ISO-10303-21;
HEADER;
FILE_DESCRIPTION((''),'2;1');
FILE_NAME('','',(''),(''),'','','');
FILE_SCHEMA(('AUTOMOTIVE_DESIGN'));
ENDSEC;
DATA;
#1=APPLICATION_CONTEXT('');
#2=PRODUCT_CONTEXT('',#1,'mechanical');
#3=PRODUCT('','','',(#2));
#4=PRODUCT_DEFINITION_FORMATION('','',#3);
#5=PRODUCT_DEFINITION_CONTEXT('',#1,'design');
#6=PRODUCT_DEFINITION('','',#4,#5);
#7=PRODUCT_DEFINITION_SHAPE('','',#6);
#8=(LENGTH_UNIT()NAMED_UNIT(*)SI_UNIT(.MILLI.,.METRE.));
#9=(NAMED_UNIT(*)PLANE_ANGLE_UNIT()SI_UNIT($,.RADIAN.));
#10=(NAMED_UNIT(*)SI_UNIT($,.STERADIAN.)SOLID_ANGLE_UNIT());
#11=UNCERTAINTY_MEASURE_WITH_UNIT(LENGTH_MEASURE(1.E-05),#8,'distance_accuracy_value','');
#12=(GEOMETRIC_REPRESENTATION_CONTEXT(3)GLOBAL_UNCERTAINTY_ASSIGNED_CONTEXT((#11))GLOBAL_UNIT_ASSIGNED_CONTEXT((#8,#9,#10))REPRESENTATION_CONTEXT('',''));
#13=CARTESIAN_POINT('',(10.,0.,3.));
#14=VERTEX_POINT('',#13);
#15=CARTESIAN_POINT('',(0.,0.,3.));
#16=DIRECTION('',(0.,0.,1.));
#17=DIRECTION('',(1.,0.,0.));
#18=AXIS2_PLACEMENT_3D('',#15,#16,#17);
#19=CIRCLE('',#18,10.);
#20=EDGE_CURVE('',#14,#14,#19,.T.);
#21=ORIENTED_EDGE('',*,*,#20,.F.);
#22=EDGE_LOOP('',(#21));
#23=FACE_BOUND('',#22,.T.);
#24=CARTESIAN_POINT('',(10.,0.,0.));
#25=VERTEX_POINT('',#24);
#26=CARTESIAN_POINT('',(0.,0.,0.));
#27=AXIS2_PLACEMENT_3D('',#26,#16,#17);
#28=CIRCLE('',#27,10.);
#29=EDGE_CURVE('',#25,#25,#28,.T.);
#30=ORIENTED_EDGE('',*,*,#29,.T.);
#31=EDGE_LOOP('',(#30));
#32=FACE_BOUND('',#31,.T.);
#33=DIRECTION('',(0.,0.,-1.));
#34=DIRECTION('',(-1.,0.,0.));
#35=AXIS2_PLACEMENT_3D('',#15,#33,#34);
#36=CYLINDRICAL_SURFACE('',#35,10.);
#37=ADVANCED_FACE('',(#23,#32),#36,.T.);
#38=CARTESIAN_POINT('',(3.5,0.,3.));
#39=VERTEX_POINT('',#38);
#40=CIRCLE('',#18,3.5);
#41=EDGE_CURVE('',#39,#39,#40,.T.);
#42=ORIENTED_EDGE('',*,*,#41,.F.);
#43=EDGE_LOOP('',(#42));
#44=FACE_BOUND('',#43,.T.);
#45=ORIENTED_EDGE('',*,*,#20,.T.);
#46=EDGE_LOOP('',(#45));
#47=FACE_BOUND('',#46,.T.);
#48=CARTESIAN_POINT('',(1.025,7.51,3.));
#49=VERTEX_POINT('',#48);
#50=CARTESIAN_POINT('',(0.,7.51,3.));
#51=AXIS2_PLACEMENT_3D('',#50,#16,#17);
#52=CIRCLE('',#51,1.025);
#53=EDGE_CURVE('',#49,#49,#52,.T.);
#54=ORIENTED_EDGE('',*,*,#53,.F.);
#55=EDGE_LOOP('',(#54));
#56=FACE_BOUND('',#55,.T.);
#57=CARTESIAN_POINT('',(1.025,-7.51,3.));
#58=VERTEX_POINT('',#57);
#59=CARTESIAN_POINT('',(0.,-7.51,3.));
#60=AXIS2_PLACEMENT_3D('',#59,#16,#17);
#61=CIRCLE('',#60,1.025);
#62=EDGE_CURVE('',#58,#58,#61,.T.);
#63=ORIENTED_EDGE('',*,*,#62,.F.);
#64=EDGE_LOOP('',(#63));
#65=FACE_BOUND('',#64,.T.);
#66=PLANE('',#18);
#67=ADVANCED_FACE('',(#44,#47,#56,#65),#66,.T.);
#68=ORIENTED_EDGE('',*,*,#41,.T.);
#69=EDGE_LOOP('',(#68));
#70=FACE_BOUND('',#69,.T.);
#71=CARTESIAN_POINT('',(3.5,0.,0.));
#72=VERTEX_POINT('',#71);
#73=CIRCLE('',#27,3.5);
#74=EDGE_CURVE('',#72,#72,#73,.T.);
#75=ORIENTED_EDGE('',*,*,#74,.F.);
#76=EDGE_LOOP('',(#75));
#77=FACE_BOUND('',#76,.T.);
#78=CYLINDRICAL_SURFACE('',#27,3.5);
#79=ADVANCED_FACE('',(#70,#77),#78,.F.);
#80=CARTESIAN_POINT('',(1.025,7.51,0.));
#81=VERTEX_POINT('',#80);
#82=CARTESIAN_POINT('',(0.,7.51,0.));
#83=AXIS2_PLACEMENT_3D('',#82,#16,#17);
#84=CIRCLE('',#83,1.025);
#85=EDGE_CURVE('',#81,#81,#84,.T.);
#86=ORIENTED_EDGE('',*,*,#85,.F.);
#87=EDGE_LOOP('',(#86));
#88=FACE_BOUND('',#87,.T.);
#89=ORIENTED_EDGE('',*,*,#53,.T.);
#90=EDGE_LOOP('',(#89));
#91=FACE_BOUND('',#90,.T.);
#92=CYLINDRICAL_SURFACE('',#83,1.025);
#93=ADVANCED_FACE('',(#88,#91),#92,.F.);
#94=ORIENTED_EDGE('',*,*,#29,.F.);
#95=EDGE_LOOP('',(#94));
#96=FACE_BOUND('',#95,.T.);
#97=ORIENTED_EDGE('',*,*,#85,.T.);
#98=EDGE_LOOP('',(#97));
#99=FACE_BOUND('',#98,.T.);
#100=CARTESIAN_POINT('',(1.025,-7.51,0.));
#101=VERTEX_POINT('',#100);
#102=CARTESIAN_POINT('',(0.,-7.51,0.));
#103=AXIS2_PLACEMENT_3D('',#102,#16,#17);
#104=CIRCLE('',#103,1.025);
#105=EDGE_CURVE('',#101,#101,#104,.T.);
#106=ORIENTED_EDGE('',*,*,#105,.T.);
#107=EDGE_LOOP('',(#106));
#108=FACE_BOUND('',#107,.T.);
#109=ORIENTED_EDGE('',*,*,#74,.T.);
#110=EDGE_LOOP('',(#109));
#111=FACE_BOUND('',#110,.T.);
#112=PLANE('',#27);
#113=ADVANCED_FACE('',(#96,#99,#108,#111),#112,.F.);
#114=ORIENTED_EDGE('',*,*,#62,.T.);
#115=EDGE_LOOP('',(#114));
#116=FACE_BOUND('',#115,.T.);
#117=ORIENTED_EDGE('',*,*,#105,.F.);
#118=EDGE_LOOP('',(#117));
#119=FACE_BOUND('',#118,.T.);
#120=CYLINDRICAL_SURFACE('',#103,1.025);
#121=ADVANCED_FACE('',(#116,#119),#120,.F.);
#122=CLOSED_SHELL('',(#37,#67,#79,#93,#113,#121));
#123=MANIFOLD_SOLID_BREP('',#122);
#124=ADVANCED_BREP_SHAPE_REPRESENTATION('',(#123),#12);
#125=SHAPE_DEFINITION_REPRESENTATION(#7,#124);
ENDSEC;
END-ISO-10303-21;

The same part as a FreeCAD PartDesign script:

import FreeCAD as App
import Part
import Sketcher
from FreeCAD import Vector
Q = App.Units.Quantity

doc = App.newDocument("Part")
body = doc.addObject("PartDesign::Body", "Body")

sketch1 = body.newObject("Sketcher::SketchObject", "Sketch")
sketch1.AttachmentSupport = (doc.getObject("XY_Plane"), [""])
sketch1.MapMode = "FlatFace"
sketch1.addGeometry(Part.Circle(Vector(0, 0, 0), Vector(0, 0, 1), 10), False)
sketch1.addConstraint([
    Sketcher.Constraint("Coincident", 0, 3, -1, 1),
    Sketcher.Constraint("Diameter", 0, Q("20 mm")),
])
pad1 = body.newObject("PartDesign::Pad", "Pad")
pad1.Profile = sketch1
pad1.Length = 3

sketch2 = body.newObject("Sketcher::SketchObject", "Sketch001")
sketch2.AttachmentSupport = (doc.getObject("XY_Plane"), [""])
sketch2.MapMode = "FlatFace"
sketch2.AttachmentOffset = App.Placement(Vector(0, 0, 3), App.Rotation())
sketch2.addGeometry([
    Part.Circle(Vector(0, 7.5, 0), Vector(0, 0, 1), 1),
    Part.Circle(Vector(0, -7.5, 0), Vector(0, 0, 1), 1),
    Part.Circle(Vector(0, 0, 0), Vector(0, 0, 1), 3.5),
], False)
sketch2.addConstraint([
    Sketcher.Constraint("Coincident", 2, 3, -1, 1),
    Sketcher.Constraint("Equal", 0, 1),
    Sketcher.Constraint("Symmetric", 0, 3, 1, 3, -1, 1),
    Sketcher.Constraint("PointOnObject", 0, 3, -2),
    Sketcher.Constraint("Diameter", 2, Q("7 mm")),
    Sketcher.Constraint("Diameter", 0, Q("2.05 mm")),
    Sketcher.Constraint("DistanceY", -1, 1, 0, 3, Q("7.51 mm")),
])
pocket1 = body.newObject("PartDesign::Pocket", "Pocket")
pocket1.Profile = sketch2
pocket1.Length = 3

doc.recompute()
